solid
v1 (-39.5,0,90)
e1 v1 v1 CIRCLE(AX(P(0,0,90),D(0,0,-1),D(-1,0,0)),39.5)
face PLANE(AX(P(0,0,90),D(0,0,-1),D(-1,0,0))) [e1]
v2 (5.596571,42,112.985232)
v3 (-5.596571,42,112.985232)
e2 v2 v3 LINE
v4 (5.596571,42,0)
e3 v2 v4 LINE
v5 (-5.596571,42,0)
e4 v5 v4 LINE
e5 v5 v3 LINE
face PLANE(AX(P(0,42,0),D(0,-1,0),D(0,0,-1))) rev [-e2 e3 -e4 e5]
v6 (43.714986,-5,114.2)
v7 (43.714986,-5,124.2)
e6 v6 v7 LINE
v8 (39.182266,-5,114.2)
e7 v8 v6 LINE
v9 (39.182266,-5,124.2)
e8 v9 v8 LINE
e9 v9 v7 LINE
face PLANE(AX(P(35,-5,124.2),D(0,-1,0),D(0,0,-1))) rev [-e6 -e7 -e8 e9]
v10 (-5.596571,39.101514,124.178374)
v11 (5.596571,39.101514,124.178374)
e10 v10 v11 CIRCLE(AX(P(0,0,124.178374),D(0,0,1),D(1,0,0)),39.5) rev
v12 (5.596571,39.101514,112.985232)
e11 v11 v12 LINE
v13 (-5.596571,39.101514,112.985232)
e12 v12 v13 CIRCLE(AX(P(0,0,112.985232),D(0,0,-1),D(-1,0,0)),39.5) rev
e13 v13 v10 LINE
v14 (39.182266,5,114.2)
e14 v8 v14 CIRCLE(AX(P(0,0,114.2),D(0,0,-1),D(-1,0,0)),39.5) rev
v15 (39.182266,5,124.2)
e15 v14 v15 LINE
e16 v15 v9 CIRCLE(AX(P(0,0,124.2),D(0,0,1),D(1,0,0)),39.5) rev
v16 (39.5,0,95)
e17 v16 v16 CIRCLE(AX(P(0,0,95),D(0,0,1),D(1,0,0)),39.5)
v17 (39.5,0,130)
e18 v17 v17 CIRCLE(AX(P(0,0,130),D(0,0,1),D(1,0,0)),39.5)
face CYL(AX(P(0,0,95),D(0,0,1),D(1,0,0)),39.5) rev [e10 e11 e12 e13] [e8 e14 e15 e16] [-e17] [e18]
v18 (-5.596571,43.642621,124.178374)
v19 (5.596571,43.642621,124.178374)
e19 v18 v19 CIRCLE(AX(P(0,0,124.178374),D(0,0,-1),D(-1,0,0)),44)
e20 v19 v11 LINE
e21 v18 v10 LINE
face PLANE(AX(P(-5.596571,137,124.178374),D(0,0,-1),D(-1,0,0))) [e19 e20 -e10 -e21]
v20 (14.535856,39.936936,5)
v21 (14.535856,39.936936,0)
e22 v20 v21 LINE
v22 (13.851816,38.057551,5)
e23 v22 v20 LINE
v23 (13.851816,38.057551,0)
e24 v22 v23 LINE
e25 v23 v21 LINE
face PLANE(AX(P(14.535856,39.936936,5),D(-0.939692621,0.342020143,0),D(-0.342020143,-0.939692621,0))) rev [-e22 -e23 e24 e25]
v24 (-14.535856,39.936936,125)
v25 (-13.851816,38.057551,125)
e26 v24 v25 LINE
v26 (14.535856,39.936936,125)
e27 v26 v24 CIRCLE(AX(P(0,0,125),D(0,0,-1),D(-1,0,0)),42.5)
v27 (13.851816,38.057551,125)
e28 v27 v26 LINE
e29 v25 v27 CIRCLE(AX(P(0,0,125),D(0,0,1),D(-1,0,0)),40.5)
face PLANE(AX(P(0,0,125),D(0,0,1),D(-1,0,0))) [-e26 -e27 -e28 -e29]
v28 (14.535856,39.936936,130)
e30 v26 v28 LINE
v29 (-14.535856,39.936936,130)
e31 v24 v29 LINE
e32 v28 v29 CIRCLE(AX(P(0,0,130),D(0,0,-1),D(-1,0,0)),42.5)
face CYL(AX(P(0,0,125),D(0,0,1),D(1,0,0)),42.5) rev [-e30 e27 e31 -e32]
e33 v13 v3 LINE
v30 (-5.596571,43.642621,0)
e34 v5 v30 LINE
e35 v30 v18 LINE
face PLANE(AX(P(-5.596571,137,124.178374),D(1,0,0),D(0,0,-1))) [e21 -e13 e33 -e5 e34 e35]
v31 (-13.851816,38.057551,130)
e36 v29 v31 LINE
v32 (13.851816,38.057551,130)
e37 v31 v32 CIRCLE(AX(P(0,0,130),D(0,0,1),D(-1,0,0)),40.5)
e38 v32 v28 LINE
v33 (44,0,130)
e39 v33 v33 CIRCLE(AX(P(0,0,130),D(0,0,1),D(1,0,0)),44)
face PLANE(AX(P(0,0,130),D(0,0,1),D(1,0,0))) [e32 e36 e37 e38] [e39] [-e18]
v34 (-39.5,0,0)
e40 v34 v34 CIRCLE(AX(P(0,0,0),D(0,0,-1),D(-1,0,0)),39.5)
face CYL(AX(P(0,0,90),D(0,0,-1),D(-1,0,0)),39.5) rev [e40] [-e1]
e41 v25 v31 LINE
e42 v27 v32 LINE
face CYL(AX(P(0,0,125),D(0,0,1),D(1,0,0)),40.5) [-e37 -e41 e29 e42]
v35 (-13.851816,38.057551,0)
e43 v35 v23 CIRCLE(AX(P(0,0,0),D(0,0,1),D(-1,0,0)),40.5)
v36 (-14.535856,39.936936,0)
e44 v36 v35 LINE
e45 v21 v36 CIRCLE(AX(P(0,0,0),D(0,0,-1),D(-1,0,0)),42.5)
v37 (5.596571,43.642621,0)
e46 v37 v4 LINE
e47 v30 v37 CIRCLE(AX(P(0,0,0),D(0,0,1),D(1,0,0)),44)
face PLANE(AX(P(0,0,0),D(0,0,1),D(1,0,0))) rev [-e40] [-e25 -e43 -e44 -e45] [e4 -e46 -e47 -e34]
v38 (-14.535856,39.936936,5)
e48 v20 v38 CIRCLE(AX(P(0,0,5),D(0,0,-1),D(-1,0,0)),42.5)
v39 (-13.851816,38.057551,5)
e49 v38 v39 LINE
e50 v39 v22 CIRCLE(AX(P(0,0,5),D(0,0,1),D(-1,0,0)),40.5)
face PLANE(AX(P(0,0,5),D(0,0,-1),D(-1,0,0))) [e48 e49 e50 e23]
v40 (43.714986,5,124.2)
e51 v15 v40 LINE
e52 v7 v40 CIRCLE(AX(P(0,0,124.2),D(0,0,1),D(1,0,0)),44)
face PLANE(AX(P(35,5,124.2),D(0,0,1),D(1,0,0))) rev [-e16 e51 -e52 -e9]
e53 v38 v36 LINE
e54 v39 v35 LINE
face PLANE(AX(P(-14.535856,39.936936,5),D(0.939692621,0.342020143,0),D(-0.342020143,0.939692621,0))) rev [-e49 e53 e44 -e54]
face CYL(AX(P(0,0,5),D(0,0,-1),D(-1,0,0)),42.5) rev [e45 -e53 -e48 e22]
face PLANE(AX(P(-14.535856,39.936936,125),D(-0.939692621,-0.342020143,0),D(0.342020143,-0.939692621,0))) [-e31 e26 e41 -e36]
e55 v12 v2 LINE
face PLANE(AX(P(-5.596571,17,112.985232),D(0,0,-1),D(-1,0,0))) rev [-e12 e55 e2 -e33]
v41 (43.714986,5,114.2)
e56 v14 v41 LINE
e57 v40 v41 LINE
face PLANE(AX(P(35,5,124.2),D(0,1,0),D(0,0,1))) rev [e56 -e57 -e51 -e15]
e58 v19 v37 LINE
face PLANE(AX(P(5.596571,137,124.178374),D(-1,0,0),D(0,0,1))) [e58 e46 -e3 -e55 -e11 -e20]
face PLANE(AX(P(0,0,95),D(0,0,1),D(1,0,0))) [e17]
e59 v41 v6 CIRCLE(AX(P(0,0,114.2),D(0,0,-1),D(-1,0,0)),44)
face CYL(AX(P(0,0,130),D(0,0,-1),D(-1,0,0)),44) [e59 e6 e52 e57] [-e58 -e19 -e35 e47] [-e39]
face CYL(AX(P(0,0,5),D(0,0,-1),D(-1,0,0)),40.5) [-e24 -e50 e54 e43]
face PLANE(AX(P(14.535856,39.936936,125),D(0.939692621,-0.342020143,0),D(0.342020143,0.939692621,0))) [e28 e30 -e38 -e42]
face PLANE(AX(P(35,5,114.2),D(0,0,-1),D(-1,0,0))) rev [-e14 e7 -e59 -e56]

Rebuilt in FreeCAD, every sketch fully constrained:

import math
import FreeCAD as App
import Part
import Sketcher
Q = App.Units.Quantity

doc = App.newDocument("Part")
body = doc.addObject("PartDesign::Body", "Body")

# Sketch on XY plane
sketch1 = body.newObject("Sketcher::SketchObject", "Sketch")
sketch1.AttachmentSupport = (doc.getObject("XY_Plane"), [""])
sketch1.MapMode = "FlatFace"
sketch1.addGeometry(Part.Circle(App.Vector(0, 0, 0), App.Vector(0, 0, 1), 44), False)
sketch1.addConstraint([
    Sketcher.Constraint("Coincident", 0, 3, -1, 1),
    Sketcher.Constraint("Diameter", 0, 88.0),
])
pad1 = body.newObject("PartDesign::Pad", "Pad")
pad1.Profile = sketch1
pad1.Length = 130

# Sketch on XY plane
sketch2 = body.newObject("Sketcher::SketchObject", "Sketch001")
sketch2.AttachmentSupport = (doc.getObject("XY_Plane"), [""])
sketch2.MapMode = "FlatFace"
sketch2.addGeometry(Part.Circle(App.Vector(0, 0, 0), App.Vector(0, 0, 1), 40), False)
sketch2.addConstraint([
    Sketcher.Constraint("Coincident", 0, 3, -1, 1),
    Sketcher.Constraint("Diameter", 0, 79.0),
])
pocket1 = body.newObject("PartDesign::Pocket", "Pocket")
pocket1.Profile = sketch2
pocket1.Length = 90
pocket1.Reversed = True

# Sketch on XY plane
sketch3 = body.newObject("Sketcher::SketchObject", "Sketch002")
sketch3.AttachmentSupport = (doc.getObject("XY_Plane"), [""])
sketch3.MapMode = "FlatFace"
sketch3.AttachmentOffset = App.Placement(App.Vector(0, 0, 130), App.Rotation())
sketch3.addGeometry(Part.Circle(App.Vector(0, 0, 0), App.Vector(0, 0, 1), 40), False)
sketch3.addConstraint([
    Sketcher.Constraint("Coincident", 0, 3, -1, 1),
    Sketcher.Constraint("Diameter", 0, 79.0),
])
pocket2 = body.newObject("PartDesign::Pocket", "Pocket001")
pocket2.Profile = sketch3
pocket2.Length = 35

# Sketch on XZ plane
sketch4 = body.newObject("Sketcher::SketchObject", "Sketch003")
sketch4.AttachmentSupport = (doc.getObject("XZ_Plane"), [""])
sketch4.MapMode = "FlatFace"
sketch4.AttachmentOffset = App.Placement(App.Vector(0, 0, -42), App.Rotation())
sketch4.addGeometry([
    Part.LineSegment(App.Vector(-6, -8, 0), App.Vector(-6, 124, 0)),
    Part.LineSegment(App.Vector(-6, 124, 0), App.Vector(6, 124, 0)),
    Part.LineSegment(App.Vector(6, 124, 0), App.Vector(6, -8, 0)),
    Part.LineSegment(App.Vector(6, -8, 0), App.Vector(-6, -8, 0)),
], False)
sketch4.addConstraint([
    Sketcher.Constraint("Coincident", 0, 2, 1, 1),
    Sketcher.Constraint("Coincident", 1, 2, 2, 1),
    Sketcher.Constraint("Coincident", 2, 2, 3, 1),
    Sketcher.Constraint("Coincident", 3, 2, 0, 1),
    Sketcher.Constraint("Vertical", 0),
    Sketcher.Constraint("Horizontal", 1),
    Sketcher.Constraint("Vertical", 2),
    Sketcher.Constraint("Horizontal", 3),
    Sketcher.Constraint("DistanceX", 1, 1, 1, 2, 11.193142),
    Sketcher.Constraint("DistanceY", 0, 1, 0, 2, 132.356748),
    Sketcher.Constraint("DistanceX", 0, 2, -1, 1, 5.596571),
    Sketcher.Constraint("DistanceY", -1, 1, 0, 2, 124.178374),
])
pocket3 = body.newObject("PartDesign::Pocket", "Pocket002")
pocket3.Profile = sketch4
pocket3.Length = 95

# Sketch on XZ plane
sketch5 = body.newObject("Sketcher::SketchObject", "Sketch004")
sketch5.AttachmentSupport = (doc.getObject("XZ_Plane"), [""])
sketch5.MapMode = "FlatFace"
sketch5.AttachmentOffset = App.Placement(App.Vector(0, 0, -42), App.Rotation())
sketch5.addGeometry([
    Part.LineSegment(App.Vector(-6, 113, 0), App.Vector(-6, 124, 0)),
    Part.LineSegment(App.Vector(-6, 124, 0), App.Vector(6, 124, 0)),
    Part.LineSegment(App.Vector(6, 124, 0), App.Vector(6, 113, 0)),
    Part.LineSegment(App.Vector(6, 113, 0), App.Vector(-6, 113, 0)),
], False)
sketch5.addConstraint([
    Sketcher.Constraint("Coincident", 0, 2, 1, 1),
    Sketcher.Constraint("Coincident", 1, 2, 2, 1),
    Sketcher.Constraint("Coincident", 2, 2, 3, 1),
    Sketcher.Constraint("Coincident", 3, 2, 0, 1),
    Sketcher.Constraint("Vertical", 0),
    Sketcher.Constraint("Horizontal", 1),
    Sketcher.Constraint("Vertical", 2),
    Sketcher.Constraint("Horizontal", 3),
    Sketcher.Constraint("Equal", 3, 0),
    Sketcher.Constraint("DistanceX", 1, 1, 1, 2, 11.193142),
    Sketcher.Constraint("DistanceX", 0, 2, -1, 1, 5.596571),
    Sketcher.Constraint("DistanceY", -1, 1, 0, 2, 124.178374),
])
pocket4 = body.newObject("PartDesign::Pocket", "Pocket003")
pocket4.Profile = sketch5
pocket4.Length = 25
pocket4.Reversed = True

# Sketch on XY plane
sketch6 = body.newObject("Sketcher::SketchObject", "Sketch005")
sketch6.AttachmentSupport = (doc.getObject("XY_Plane"), [""])
sketch6.MapMode = "FlatFace"
sketch6.addGeometry([
    Part.LineSegment(App.Vector(-14.5, 39.9, 0), App.Vector(-13.9, 38.1, 0)),
    Part.ArcOfCircle(Part.Circle(App.Vector(0, 0, 0), App.Vector(0, 0, 1), 40.5), math.radians(110), math.radians(430)),
    Part.LineSegment(App.Vector(13.9, 38.1, 0), App.Vector(14.5, 39.9, 0)),
    Part.ArcOfCircle(Part.Circle(App.Vector(0, 0, 0), App.Vector(0, 0, 1), 42.5), math.radians(110), math.radians(430)),
], False)
sketch6.addConstraint([
    Sketcher.Constraint("Coincident", 0, 2, 1, 1),
    Sketcher.Constraint("Coincident", 1, 2, 2, 1),
    Sketcher.Constraint("Coincident", 2, 2, 3, 2),
    Sketcher.Constraint("Coincident", 3, 1, 0, 1),
    Sketcher.Constraint("Coincident", 1, 3, -1, 1),
    Sketcher.Constraint("Coincident", 3, 3, -1, 1),
    Sketcher.Constraint("Horizontal", 0, 2, 1, 2),
    Sketcher.Constraint("Horizontal", 2, 2, 3, 1),
    Sketcher.Constraint("Radius", 1, 40.5),
    Sketcher.Constraint("Radius", 3, 42.5),
    Sketcher.Constraint("Angle", 0, Q("-70 deg")),
    Sketcher.Constraint("DistanceY", -1, 1, 0, 2, 38.057551),
])
pocket5 = body.newObject("PartDesign::Pocket", "Pocket004")
pocket5.Profile = sketch6
pocket5.Length = 5
pocket5.Reversed = True

# Sketch on YZ plane
sketch7 = body.newObject("Sketcher::SketchObject", "Sketch006")
sketch7.AttachmentSupport = (doc.getObject("YZ_Plane"), [""])
sketch7.MapMode = "FlatFace"
sketch7.AttachmentOffset = App.Placement(App.Vector(0, 0, 40), App.Rotation())
sketch7.addGeometry([
    Part.LineSegment(App.Vector(5, 124, 0), App.Vector(-5, 124, 0)),
    Part.LineSegment(App.Vector(-5, 124, 0), App.Vector(-5, 114, 0)),
    Part.LineSegment(App.Vector(-5, 114, 0), App.Vector(5, 114, 0)),
    Part.LineSegment(App.Vector(5, 114, 0), App.Vector(5, 124, 0)),
], False)
sketch7.addConstraint([
    Sketcher.Constraint("Coincident", 0, 2, 1, 1),
    Sketcher.Constraint("Coincident", 1, 2, 2, 1),
    Sketcher.Constraint("Coincident", 2, 2, 3, 1),
    Sketcher.Constraint("Coincident", 3, 2, 0, 1),
    Sketcher.Constraint("Horizontal", 0),
    Sketcher.Constraint("Vertical", 1),
    Sketcher.Constraint("Horizontal", 2),
    Sketcher.Constraint("Vertical", 3),
    Sketcher.Constraint("Equal", 2, 1),
    Sketcher.Constraint("DistanceX", 0, 2, 0, 1, 10.0),
    Sketcher.Constraint("DistanceX", 0, 2, -1, 1, 5.0),
    Sketcher.Constraint("DistanceY", -1, 1, 0, 2, 124.2),
])
pocket6 = body.newObject("PartDesign::Pocket", "Pocket005")
pocket6.Profile = sketch7
pocket6.Type = "TwoLengths"
pocket6.Length = 5
pocket6.Length2 = 5
pocket6.Reversed = True
doc.recompute()

datumplane = body.newObject("PartDesign::Plane", "DatumPlane")
datumplane.AttachmentSupport = (doc.getObject("XY_Plane"), [""])
datumplane.MapMode = "FlatFace"
datumplane.AttachmentOffset = App.Placement(App.Vector(0, 0, 65), App.Rotation())
mirrored = body.newObject("PartDesign::Mirrored", "Mirrored")
mirrored.Originals = [pocket5]
mirrored.MirrorPlane = (datumplane, [""])
body.Tip = mirrored

doc.recompute()
